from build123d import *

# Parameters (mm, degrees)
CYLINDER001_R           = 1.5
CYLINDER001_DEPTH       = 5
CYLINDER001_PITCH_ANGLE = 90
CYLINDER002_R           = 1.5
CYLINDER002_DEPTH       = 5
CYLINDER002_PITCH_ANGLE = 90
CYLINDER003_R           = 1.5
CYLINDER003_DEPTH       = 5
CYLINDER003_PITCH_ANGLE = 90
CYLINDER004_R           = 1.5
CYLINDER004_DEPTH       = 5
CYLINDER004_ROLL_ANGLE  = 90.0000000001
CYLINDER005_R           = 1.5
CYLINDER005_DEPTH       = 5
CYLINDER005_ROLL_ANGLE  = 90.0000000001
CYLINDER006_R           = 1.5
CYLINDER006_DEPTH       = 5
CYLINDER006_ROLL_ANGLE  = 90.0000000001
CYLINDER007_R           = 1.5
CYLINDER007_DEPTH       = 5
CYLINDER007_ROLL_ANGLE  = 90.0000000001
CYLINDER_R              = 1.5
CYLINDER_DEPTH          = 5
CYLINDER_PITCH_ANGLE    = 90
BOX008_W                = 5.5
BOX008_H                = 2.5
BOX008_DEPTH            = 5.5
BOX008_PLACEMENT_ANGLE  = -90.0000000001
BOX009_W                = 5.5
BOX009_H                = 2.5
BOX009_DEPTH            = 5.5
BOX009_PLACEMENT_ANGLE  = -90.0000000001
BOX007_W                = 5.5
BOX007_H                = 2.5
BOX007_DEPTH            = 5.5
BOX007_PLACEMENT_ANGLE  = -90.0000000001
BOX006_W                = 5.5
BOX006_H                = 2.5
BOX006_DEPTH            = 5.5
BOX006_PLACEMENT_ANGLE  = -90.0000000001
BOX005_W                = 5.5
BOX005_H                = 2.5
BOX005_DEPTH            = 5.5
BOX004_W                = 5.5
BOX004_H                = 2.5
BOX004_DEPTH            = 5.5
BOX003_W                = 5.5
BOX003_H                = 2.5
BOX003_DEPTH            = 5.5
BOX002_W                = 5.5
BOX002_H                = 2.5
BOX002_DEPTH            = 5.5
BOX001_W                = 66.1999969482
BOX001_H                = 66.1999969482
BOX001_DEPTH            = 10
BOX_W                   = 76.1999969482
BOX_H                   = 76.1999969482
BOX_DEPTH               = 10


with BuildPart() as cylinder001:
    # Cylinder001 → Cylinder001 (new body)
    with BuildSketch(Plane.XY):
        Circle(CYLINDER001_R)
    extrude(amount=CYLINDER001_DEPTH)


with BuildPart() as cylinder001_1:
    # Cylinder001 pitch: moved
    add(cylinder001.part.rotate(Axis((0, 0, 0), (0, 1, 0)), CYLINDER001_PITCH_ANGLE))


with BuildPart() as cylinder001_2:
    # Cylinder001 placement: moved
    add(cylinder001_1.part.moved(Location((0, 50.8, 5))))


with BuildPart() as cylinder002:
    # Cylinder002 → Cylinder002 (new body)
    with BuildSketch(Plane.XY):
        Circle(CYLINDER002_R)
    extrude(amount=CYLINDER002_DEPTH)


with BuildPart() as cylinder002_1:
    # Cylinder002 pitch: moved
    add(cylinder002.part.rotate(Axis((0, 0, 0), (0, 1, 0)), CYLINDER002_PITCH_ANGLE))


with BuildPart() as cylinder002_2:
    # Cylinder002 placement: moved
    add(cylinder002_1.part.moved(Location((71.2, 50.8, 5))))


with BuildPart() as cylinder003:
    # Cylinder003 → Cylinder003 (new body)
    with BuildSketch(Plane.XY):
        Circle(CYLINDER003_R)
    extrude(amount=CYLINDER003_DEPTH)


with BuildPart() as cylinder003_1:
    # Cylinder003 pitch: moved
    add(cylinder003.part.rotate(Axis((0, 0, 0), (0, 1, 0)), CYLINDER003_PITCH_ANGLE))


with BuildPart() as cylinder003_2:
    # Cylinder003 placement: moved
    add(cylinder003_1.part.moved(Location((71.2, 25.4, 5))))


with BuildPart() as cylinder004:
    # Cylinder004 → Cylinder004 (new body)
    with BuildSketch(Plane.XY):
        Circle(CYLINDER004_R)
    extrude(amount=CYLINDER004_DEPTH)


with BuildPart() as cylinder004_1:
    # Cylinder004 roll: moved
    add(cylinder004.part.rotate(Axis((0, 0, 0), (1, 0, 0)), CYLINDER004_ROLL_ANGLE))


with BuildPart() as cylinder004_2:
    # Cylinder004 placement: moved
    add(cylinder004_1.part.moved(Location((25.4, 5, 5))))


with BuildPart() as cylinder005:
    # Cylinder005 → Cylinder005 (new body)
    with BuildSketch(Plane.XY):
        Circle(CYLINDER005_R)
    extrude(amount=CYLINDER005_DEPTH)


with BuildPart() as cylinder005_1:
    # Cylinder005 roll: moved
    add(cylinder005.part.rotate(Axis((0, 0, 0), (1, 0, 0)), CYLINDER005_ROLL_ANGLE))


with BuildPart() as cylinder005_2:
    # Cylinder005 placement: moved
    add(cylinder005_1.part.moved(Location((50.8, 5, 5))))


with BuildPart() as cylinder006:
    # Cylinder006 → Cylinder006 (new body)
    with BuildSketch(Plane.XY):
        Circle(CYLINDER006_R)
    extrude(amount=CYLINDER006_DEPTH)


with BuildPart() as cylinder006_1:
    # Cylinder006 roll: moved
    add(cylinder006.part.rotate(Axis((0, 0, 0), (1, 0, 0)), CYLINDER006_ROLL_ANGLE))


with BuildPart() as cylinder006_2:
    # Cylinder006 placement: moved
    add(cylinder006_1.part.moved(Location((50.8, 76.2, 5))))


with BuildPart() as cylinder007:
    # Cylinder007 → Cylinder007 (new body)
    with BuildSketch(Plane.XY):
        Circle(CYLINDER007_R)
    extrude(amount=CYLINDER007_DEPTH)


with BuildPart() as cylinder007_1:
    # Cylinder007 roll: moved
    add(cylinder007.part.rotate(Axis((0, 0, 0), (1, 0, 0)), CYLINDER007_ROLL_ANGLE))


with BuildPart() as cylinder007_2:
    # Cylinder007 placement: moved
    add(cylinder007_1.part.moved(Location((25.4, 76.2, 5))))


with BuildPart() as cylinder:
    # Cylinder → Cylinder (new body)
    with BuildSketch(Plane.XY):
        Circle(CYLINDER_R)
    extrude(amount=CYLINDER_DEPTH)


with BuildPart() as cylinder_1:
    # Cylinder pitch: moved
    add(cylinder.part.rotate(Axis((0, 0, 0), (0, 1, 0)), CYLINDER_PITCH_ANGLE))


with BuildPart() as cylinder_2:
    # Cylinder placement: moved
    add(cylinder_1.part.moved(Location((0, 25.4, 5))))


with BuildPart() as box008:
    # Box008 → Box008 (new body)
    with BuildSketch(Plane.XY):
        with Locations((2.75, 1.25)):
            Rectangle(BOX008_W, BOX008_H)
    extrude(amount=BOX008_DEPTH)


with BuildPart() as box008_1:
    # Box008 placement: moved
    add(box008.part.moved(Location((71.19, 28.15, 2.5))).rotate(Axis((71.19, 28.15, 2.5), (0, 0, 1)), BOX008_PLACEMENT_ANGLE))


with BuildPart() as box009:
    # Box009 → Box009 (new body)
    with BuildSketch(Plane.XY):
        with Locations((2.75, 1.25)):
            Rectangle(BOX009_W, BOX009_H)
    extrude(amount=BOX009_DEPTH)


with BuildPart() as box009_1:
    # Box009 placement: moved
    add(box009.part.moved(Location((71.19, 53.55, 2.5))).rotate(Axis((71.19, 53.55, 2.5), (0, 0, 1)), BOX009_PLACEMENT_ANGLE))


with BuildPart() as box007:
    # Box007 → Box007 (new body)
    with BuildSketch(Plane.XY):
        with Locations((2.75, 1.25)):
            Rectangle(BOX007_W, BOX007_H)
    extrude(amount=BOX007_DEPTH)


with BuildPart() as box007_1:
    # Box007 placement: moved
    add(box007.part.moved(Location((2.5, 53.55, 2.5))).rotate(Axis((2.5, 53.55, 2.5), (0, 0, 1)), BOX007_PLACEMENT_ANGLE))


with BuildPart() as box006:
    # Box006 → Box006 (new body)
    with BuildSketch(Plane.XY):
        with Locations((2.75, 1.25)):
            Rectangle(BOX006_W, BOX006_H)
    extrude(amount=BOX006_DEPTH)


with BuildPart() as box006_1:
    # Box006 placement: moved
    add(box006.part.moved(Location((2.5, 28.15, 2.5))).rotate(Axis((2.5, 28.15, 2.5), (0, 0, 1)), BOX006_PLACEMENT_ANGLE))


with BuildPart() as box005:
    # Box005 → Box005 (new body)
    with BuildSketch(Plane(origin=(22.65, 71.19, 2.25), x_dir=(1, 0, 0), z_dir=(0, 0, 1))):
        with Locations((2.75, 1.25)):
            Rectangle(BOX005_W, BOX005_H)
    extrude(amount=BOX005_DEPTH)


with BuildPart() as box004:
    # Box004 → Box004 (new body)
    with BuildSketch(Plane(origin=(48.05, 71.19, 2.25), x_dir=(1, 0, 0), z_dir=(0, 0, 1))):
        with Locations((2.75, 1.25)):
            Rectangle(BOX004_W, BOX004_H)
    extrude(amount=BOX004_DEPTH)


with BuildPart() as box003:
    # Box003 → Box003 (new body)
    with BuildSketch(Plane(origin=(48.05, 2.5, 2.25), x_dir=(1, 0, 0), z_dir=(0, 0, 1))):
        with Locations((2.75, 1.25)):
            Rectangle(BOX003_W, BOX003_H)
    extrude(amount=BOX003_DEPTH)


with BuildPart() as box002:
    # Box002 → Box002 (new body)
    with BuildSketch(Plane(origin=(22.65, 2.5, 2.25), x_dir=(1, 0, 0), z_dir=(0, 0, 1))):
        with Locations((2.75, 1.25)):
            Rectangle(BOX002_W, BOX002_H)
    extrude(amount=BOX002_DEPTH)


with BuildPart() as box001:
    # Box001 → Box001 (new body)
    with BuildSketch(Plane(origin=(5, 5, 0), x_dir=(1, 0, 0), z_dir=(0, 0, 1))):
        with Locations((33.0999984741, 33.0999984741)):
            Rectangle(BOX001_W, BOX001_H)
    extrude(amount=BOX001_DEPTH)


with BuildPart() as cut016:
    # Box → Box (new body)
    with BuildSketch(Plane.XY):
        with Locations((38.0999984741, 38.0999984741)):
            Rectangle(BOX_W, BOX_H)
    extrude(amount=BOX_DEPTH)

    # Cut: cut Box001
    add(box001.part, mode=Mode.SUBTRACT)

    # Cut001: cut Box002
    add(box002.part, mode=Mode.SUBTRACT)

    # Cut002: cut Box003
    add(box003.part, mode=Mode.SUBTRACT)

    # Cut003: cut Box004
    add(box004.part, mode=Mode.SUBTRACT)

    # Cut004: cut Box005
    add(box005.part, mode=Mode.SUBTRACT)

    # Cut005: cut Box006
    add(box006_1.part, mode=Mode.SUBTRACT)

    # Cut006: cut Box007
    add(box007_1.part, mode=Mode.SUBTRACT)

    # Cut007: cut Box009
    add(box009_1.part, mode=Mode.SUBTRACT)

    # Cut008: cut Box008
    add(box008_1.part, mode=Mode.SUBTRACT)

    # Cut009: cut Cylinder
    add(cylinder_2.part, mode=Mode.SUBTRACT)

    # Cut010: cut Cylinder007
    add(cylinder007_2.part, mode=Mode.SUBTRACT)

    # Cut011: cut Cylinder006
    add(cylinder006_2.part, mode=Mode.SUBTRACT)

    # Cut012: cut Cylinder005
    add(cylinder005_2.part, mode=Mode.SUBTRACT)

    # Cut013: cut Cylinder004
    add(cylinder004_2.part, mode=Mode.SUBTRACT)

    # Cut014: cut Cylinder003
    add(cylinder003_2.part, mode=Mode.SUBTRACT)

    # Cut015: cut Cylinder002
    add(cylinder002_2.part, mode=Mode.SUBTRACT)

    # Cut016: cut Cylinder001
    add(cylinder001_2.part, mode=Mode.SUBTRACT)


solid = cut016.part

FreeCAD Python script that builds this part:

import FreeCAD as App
import Part
import Sketcher
Q = App.Units.Quantity

doc = App.newDocument("Part")
body = doc.addObject("PartDesign::Body", "Body")

# Sketch on XY plane
sketch1 = body.newObject("Sketcher::SketchObject", "Sketch")
sketch1.AttachmentSupport = (doc.getObject("XY_Plane"), [""])
sketch1.MapMode = "FlatFace"
sketch1.addGeometry(Part.Circle(App.Vector(0, 0, 0), App.Vector(0, 0, 1), 1.5), False)
sketch1.addConstraint([
    Sketcher.Constraint("Coincident", 0, 3, -1, 1),
    Sketcher.Constraint("Diameter", 0, Q("3 mm")),
])
pad1 = body.newObject("PartDesign::Pad", "Pad")
pad1.Profile = sketch1
pad1.Length = 5
body2 = doc.addObject("PartDesign::Body", "Body001")
doc.recompute()

body.Placement = App.Placement(App.Vector(0, 0, 0), App.Rotation(App.Vector(0, 1, 0), 90))
boolean = body2.newObject("PartDesign::Boolean", "Boolean")
boolean.Type = "Fuse"
boolean.addObjects([body])
body3 = doc.addObject("PartDesign::Body", "Body002")
doc.recompute()

body2.Placement = App.Placement(App.Vector(0, 50.8, 5), App.Rotation(App.Vector(0, 0, 1), 0))
boolean2 = body3.newObject("PartDesign::Boolean", "Boolean001")
boolean2.Type = "Fuse"
boolean2.addObjects([body2])
body4 = doc.addObject("PartDesign::Body", "Body003")

# Sketch on XY plane
sketch2 = body4.newObject("Sketcher::SketchObject", "Sketch001")
sketch2.AttachmentSupport = (doc.getObject("XY_Plane003"), [""])
sketch2.MapMode = "FlatFace"
sketch2.addGeometry(Part.Circle(App.Vector(0, 0, 0), App.Vector(0, 0, 1), 1.5), False)
sketch2.addConstraint([
    Sketcher.Constraint("Coincident", 0, 3, -1, 1),
    Sketcher.Constraint("Diameter", 0, Q("3 mm")),
])
pad2 = body4.newObject("PartDesign::Pad", "Pad001")
pad2.Profile = sketch2
pad2.Length = 5
body5 = doc.addObject("PartDesign::Body", "Body004")
doc.recompute()

body4.Placement = App.Placement(App.Vector(0, 0, 0), App.Rotation(App.Vector(0, 1, 0), 90))
boolean3 = body5.newObject("PartDesign::Boolean", "Boolean002")
boolean3.Type = "Fuse"
boolean3.addObjects([body4])
body6 = doc.addObject("PartDesign::Body", "Body005")
doc.recompute()

body5.Placement = App.Placement(App.Vector(71.2, 50.8, 5), App.Rotation(App.Vector(0, 0, 1), 0))
boolean4 = body6.newObject("PartDesign::Boolean", "Boolean003")
boolean4.Type = "Fuse"
boolean4.addObjects([body5])
body7 = doc.addObject("PartDesign::Body", "Body006")

# Sketch on XY plane
sketch3 = body7.newObject("Sketcher::SketchObject", "Sketch002")
sketch3.AttachmentSupport = (doc.getObject("XY_Plane006"), [""])
sketch3.MapMode = "FlatFace"
sketch3.addGeometry(Part.Circle(App.Vector(0, 0, 0), App.Vector(0, 0, 1), 1.5), False)
sketch3.addConstraint([
    Sketcher.Constraint("Coincident", 0, 3, -1, 1),
    Sketcher.Constraint("Diameter", 0, Q("3 mm")),
])
pad3 = body7.newObject("PartDesign::Pad", "Pad002")
pad3.Profile = sketch3
pad3.Length = 5
body8 = doc.addObject("PartDesign::Body", "Body007")
doc.recompute()

body7.Placement = App.Placement(App.Vector(0, 0, 0), App.Rotation(App.Vector(0, 1, 0), 90))
boolean5 = body8.newObject("PartDesign::Boolean", "Boolean004")
boolean5.Type = "Fuse"
boolean5.addObjects([body7])
body9 = doc.addObject("PartDesign::Body", "Body008")
doc.recompute()

body8.Placement = App.Placement(App.Vector(71.2, 25.4, 5), App.Rotation(App.Vector(0, 0, 1), 0))
boolean6 = body9.newObject("PartDesign::Boolean", "Boolean005")
boolean6.Type = "Fuse"
boolean6.addObjects([body8])
body10 = doc.addObject("PartDesign::Body", "Body009")

# Sketch on XY plane
sketch4 = body10.newObject("Sketcher::SketchObject", "Sketch003")
sketch4.AttachmentSupport = (doc.getObject("XY_Plane009"), [""])
sketch4.MapMode = "FlatFace"
sketch4.addGeometry(Part.Circle(App.Vector(0, 0, 0), App.Vector(0, 0, 1), 1.5), False)
sketch4.addConstraint([
    Sketcher.Constraint("Coincident", 0, 3, -1, 1),
    Sketcher.Constraint("Diameter", 0, Q("3 mm")),
])
pad4 = body10.newObject("PartDesign::Pad", "Pad003")
pad4.Profile = sketch4
pad4.Length = 5
body11 = doc.addObject("PartDesign::Body", "Body010")
doc.recompute()

body10.Placement = App.Placement(App.Vector(0, 0, 0), App.Rotation(App.Vector(1, 0, 0), 90))
boolean7 = body11.newObject("PartDesign::Boolean", "Boolean006")
boolean7.Type = "Fuse"
boolean7.addObjects([body10])
body12 = doc.addObject("PartDesign::Body", "Body011")
doc.recompute()

body11.Placement = App.Placement(App.Vector(25.4, 5, 5), App.Rotation(App.Vector(0, 0, 1), 0))
boolean8 = body12.newObject("PartDesign::Boolean", "Boolean007")
boolean8.Type = "Fuse"
boolean8.addObjects([body11])
body13 = doc.addObject("PartDesign::Body", "Body012")

# Sketch on XY plane
sketch5 = body13.newObject("Sketcher::SketchObject", "Sketch004")
sketch5.AttachmentSupport = (doc.getObject("XY_Plane012"), [""])
sketch5.MapMode = "FlatFace"
sketch5.addGeometry(Part.Circle(App.Vector(0, 0, 0), App.Vector(0, 0, 1), 1.5), False)
sketch5.addConstraint([
    Sketcher.Constraint("Coincident", 0, 3, -1, 1),
    Sketcher.Constraint("Diameter", 0, Q("3 mm")),
])
pad5 = body13.newObject("PartDesign::Pad", "Pad004")
pad5.Profile = sketch5
pad5.Length = 5
body14 = doc.addObject("PartDesign::Body", "Body013")
doc.recompute()

body13.Placement = App.Placement(App.Vector(0, 0, 0), App.Rotation(App.Vector(1, 0, 0), 90))
boolean9 = body14.newObject("PartDesign::Boolean", "Boolean008")
boolean9.Type = "Fuse"
boolean9.addObjects([body13])
body15 = doc.addObject("PartDesign::Body", "Body014")
doc.recompute()

body14.Placement = App.Placement(App.Vector(50.8, 5, 5), App.Rotation(App.Vector(0, 0, 1), 0))
boolean10 = body15.newObject("PartDesign::Boolean", "Boolean009")
boolean10.Type = "Fuse"
boolean10.addObjects([body14])
body16 = doc.addObject("PartDesign::Body", "Body015")

# Sketch on XY plane
sketch6 = body16.newObject("Sketcher::SketchObject", "Sketch005")
sketch6.AttachmentSupport = (doc.getObject("XY_Plane015"), [""])
sketch6.MapMode = "FlatFace"
sketch6.addGeometry(Part.Circle(App.Vector(0, 0, 0), App.Vector(0, 0, 1), 1.5), False)
sketch6.addConstraint([
    Sketcher.Constraint("Coincident", 0, 3, -1, 1),
    Sketcher.Constraint("Diameter", 0, Q("3 mm")),
])
pad6 = body16.newObject("PartDesign::Pad", "Pad005")
pad6.Profile = sketch6
pad6.Length = 5
body17 = doc.addObject("PartDesign::Body", "Body016")
doc.recompute()

body16.Placement = App.Placement(App.Vector(0, 0, 0), App.Rotation(App.Vector(1, 0, 0), 90))
boolean11 = body17.newObject("PartDesign::Boolean", "Boolean010")
boolean11.Type = "Fuse"
boolean11.addObjects([body16])
body18 = doc.addObject("PartDesign::Body", "Body017")
doc.recompute()

body17.Placement = App.Placement(App.Vector(50.8, 76.2, 5), App.Rotation(App.Vector(0, 0, 1), 0))
boolean12 = body18.newObject("PartDesign::Boolean", "Boolean011")
boolean12.Type = "Fuse"
boolean12.addObjects([body17])
body19 = doc.addObject("PartDesign::Body", "Body018")

# Sketch on XY plane
sketch7 = body19.newObject("Sketcher::SketchObject", "Sketch006")
sketch7.AttachmentSupport = (doc.getObject("XY_Plane018"), [""])
sketch7.MapMode = "FlatFace"
sketch7.addGeometry(Part.Circle(App.Vector(0, 0, 0), App.Vector(0, 0, 1), 1.5), False)
sketch7.addConstraint([
    Sketcher.Constraint("Coincident", 0, 3, -1, 1),
    Sketcher.Constraint("Diameter", 0, Q("3 mm")),
])
pad7 = body19.newObject("PartDesign::Pad", "Pad006")
pad7.Profile = sketch7
pad7.Length = 5
body20 = doc.addObject("PartDesign::Body", "Body019")
doc.recompute()

body19.Placement = App.Placement(App.Vector(0, 0, 0), App.Rotation(App.Vector(1, 0, 0), 90))
boolean13 = body20.newObject("PartDesign::Boolean", "Boolean012")
boolean13.Type = "Fuse"
boolean13.addObjects([body19])
body21 = doc.addObject("PartDesign::Body", "Body020")
doc.recompute()

body20.Placement = App.Placement(App.Vector(25.4, 76.2, 5), App.Rotation(App.Vector(0, 0, 1), 0))
boolean14 = body21.newObject("PartDesign::Boolean", "Boolean013")
boolean14.Type = "Fuse"
boolean14.addObjects([body20])
body22 = doc.addObject("PartDesign::Body", "Body021")

# Sketch on XY plane
sketch8 = body22.newObject("Sketcher::SketchObject", "Sketch007")
sketch8.AttachmentSupport = (doc.getObject("XY_Plane021"), [""])
sketch8.MapMode = "FlatFace"
sketch8.addGeometry(Part.Circle(App.Vector(0, 0, 0), App.Vector(0, 0, 1), 1.5), False)
sketch8.addConstraint([
    Sketcher.Constraint("Coincident", 0, 3, -1, 1),
    Sketcher.Constraint("Diameter", 0, Q("3 mm")),
])
pad8 = body22.newObject("PartDesign::Pad", "Pad007")
pad8.Profile = sketch8
pad8.Length = 5
body23 = doc.addObject("PartDesign::Body", "Body022")
doc.recompute()

body22.Placement = App.Placement(App.Vector(0, 0, 0), App.Rotation(App.Vector(0, 1, 0), 90))
boolean15 = body23.newObject("PartDesign::Boolean", "Boolean014")
boolean15.Type = "Fuse"
boolean15.addObjects([body22])
body24 = doc.addObject("PartDesign::Body", "Body023")
doc.recompute()

body23.Placement = App.Placement(App.Vector(0, 25.4, 5), App.Rotation(App.Vector(0, 0, 1), 0))
boolean16 = body24.newObject("PartDesign::Boolean", "Boolean015")
boolean16.Type = "Fuse"
boolean16.addObjects([body23])
body25 = doc.addObject("PartDesign::Body", "Body024")

# Sketch on XY plane
sketch9 = body25.newObject("Sketcher::SketchObject", "Sketch008")
sketch9.AttachmentSupport = (doc.getObject("XY_Plane024"), [""])
sketch9.MapMode = "FlatFace"
sketch9.addGeometry([
    Part.LineSegment(App.Vector(0, 2.5, 0), App.Vector(0, 0, 0)),
    Part.LineSegment(App.Vector(0, 0, 0), App.Vector(5.5, 0, 0)),
    Part.LineSegment(App.Vector(5.5, 0, 0), App.Vector(5.5, 2.5, 0)),
    Part.LineSegment(App.Vector(5.5, 2.5, 0), App.Vector(0, 2.5, 0)),
], False)
sketch9.addConstraint([
    Sketcher.Constraint("Coincident", 0, 2, 1, 1),
    Sketcher.Constraint("Coincident", 1, 2, 2, 1),
    Sketcher.Constraint("Coincident", 2, 2, 3, 1),
    Sketcher.Constraint("Coincident", 3, 2, 0, 1),
    Sketcher.Constraint("Vertical", 0),
    Sketcher.Constraint("Horizontal", 1),
    Sketcher.Constraint("Vertical", 2),
    Sketcher.Constraint("Horizontal", 3),
    Sketcher.Constraint("Coincident", 0, 2, -1, 1),
    Sketcher.Constraint("DistanceX", 1, 1, 1, 2, Q("5.5 mm")),
    Sketcher.Constraint("DistanceY", 0, 2, 0, 1, Q("2.5 mm")),
])
pad9 = body25.newObject("PartDesign::Pad", "Pad008")
pad9.Profile = sketch9
pad9.Length = 5.5
body26 = doc.addObject("PartDesign::Body", "Body025")
doc.recompute()

body25.Placement = App.Placement(App.Vector(71.19, 28.15, 2.5), App.Rotation(App.Vector(0, 0, 1), 270))
boolean17 = body26.newObject("PartDesign::Boolean", "Boolean016")
boolean17.Type = "Fuse"
boolean17.addObjects([body25])
body27 = doc.addObject("PartDesign::Body", "Body026")

# Sketch on XY plane
sketch10 = body27.newObject("Sketcher::SketchObject", "Sketch009")
sketch10.AttachmentSupport = (doc.getObject("XY_Plane026"), [""])
sketch10.MapMode = "FlatFace"
sketch10.addGeometry([
    Part.LineSegment(App.Vector(0, 2.5, 0), App.Vector(0, 0, 0)),
    Part.LineSegment(App.Vector(0, 0, 0), App.Vector(5.5, 0, 0)),
    Part.LineSegment(App.Vector(5.5, 0, 0), App.Vector(5.5, 2.5, 0)),
    Part.LineSegment(App.Vector(5.5, 2.5, 0), App.Vector(0, 2.5, 0)),
], False)
sketch10.addConstraint([
    Sketcher.Constraint("Coincident", 0, 2, 1, 1),
    Sketcher.Constraint("Coincident", 1, 2, 2, 1),
    Sketcher.Constraint("Coincident", 2, 2, 3, 1),
    Sketcher.Constraint("Coincident", 3, 2, 0, 1),
    Sketcher.Constraint("Vertical", 0),
    Sketcher.Constraint("Horizontal", 1),
    Sketcher.Constraint("Vertical", 2),
    Sketcher.Constraint("Horizontal", 3),
    Sketcher.Constraint("Coincident", 0, 2, -1, 1),
    Sketcher.Constraint("DistanceX", 1, 1, 1, 2, Q("5.5 mm")),
    Sketcher.Constraint("DistanceY", 0, 2, 0, 1, Q("2.5 mm")),
])
pad10 = body27.newObject("PartDesign::Pad", "Pad009")
pad10.Profile = sketch10
pad10.Length = 5.5
body28 = doc.addObject("PartDesign::Body", "Body027")
doc.recompute()

body27.Placement = App.Placement(App.Vector(71.19, 53.55, 2.5), App.Rotation(App.Vector(0, 0, 1), 270))
boolean18 = body28.newObject("PartDesign::Boolean", "Boolean017")
boolean18.Type = "Fuse"
boolean18.addObjects([body27])
body29 = doc.addObject("PartDesign::Body", "Body028")

# Sketch on XY plane
sketch11 = body29.newObject("Sketcher::SketchObject", "Sketch010")
sketch11.AttachmentSupport = (doc.getObject("XY_Plane028"), [""])
sketch11.MapMode = "FlatFace"
sketch11.addGeometry([
    Part.LineSegment(App.Vector(0, 2.5, 0), App.Vector(0, 0, 0)),
    Part.LineSegment(App.Vector(0, 0, 0), App.Vector(5.5, 0, 0)),
    Part.LineSegment(App.Vector(5.5, 0, 0), App.Vector(5.5, 2.5, 0)),
    Part.LineSegment(App.Vector(5.5, 2.5, 0), App.Vector(0, 2.5, 0)),
], False)
sketch11.addConstraint([
    Sketcher.Constraint("Coincident", 0, 2, 1, 1),
    Sketcher.Constraint("Coincident", 1, 2, 2, 1),
    Sketcher.Constraint("Coincident", 2, 2, 3, 1),
    Sketcher.Constraint("Coincident", 3, 2, 0, 1),
    Sketcher.Constraint("Vertical", 0),
    Sketcher.Constraint("Horizontal", 1),
    Sketcher.Constraint("Vertical", 2),
    Sketcher.Constraint("Horizontal", 3),
    Sketcher.Constraint("Coincident", 0, 2, -1, 1),
    Sketcher.Constraint("DistanceX", 1, 1, 1, 2, Q("5.5 mm")),
    Sketcher.Constraint("DistanceY", 0, 2, 0, 1, Q("2.5 mm")),
])
pad11 = body29.newObject("PartDesign::Pad", "Pad010")
pad11.Profile = sketch11
pad11.Length = 5.5
body30 = doc.addObject("PartDesign::Body", "Body029")
doc.recompute()

body29.Placement = App.Placement(App.Vector(2.5, 53.55, 2.5), App.Rotation(App.Vector(0, 0, 1), 270))
boolean19 = body30.newObject("PartDesign::Boolean", "Boolean018")
boolean19.Type = "Fuse"
boolean19.addObjects([body29])
body31 = doc.addObject("PartDesign::Body", "Body030")

# Sketch on XY plane
sketch12 = body31.newObject("Sketcher::SketchObject", "Sketch011")
sketch12.AttachmentSupport = (doc.getObject("XY_Plane030"), [""])
sketch12.MapMode = "FlatFace"
sketch12.addGeometry([
    Part.LineSegment(App.Vector(0, 2.5, 0), App.Vector(0, 0, 0)),
    Part.LineSegment(App.Vector(0, 0, 0), App.Vector(5.5, 0, 0)),
    Part.LineSegment(App.Vector(5.5, 0, 0), App.Vector(5.5, 2.5, 0)),
    Part.LineSegment(App.Vector(5.5, 2.5, 0), App.Vector(0, 2.5, 0)),
], False)
sketch12.addConstraint([
    Sketcher.Constraint("Coincident", 0, 2, 1, 1),
    Sketcher.Constraint("Coincident", 1, 2, 2, 1),
    Sketcher.Constraint("Coincident", 2, 2, 3, 1),
    Sketcher.Constraint("Coincident", 3, 2, 0, 1),
    Sketcher.Constraint("Vertical", 0),
    Sketcher.Constraint("Horizontal", 1),
    Sketcher.Constraint("Vertical", 2),
    Sketcher.Constraint("Horizontal", 3),
    Sketcher.Constraint("Coincident", 0, 2, -1, 1),
    Sketcher.Constraint("DistanceX", 1, 1, 1, 2, Q("5.5 mm")),
    Sketcher.Constraint("DistanceY", 0, 2, 0, 1, Q("2.5 mm")),
])
pad12 = body31.newObject("PartDesign::Pad", "Pad011")
pad12.Profile = sketch12
pad12.Length = 5.5
body32 = doc.addObject("PartDesign::Body", "Body031")
doc.recompute()

body31.Placement = App.Placement(App.Vector(2.5, 28.15, 2.5), App.Rotation(App.Vector(0, 0, 1), 270))
boolean20 = body32.newObject("PartDesign::Boolean", "Boolean019")
boolean20.Type = "Fuse"
boolean20.addObjects([body31])
body33 = doc.addObject("PartDesign::Body", "Body032")

# Sketch on XY plane
sketch13 = body33.newObject("Sketcher::SketchObject", "Sketch012")
sketch13.AttachmentSupport = (doc.getObject("XY_Plane032"), [""])
sketch13.MapMode = "FlatFace"
sketch13.AttachmentOffset = App.Placement(App.Vector(0, 0, 2.25), App.Rotation())
sketch13.addGeometry([
    Part.LineSegment(App.Vector(22.6, 73.7, 0), App.Vector(22.6, 71.2, 0)),
    Part.LineSegment(App.Vector(22.6, 71.2, 0), App.Vector(28.1, 71.2, 0)),
    Part.LineSegment(App.Vector(28.1, 71.2, 0), App.Vector(28.1, 73.7, 0)),
    Part.LineSegment(App.Vector(28.1, 73.7, 0), App.Vector(22.6, 73.7, 0)),
], False)
sketch13.addConstraint([
    Sketcher.Constraint("Coincident", 0, 2, 1, 1),
    Sketcher.Constraint("Coincident", 1, 2, 2, 1),
    Sketcher.Constraint("Coincident", 2, 2, 3, 1),
    Sketcher.Constraint("Coincident", 3, 2, 0, 1),
    Sketcher.Constraint("Vertical", 0),
    Sketcher.Constraint("Horizontal", 1),
    Sketcher.Constraint("Vertical", 2),
    Sketcher.Constraint("Horizontal", 3),
    Sketcher.Constraint("DistanceX", 1, 1, 1, 2, Q("5.5 mm")),
    Sketcher.Constraint("DistanceY", 0, 2, 0, 1, Q("2.5 mm")),
    Sketcher.Constraint("DistanceX", -1, 1, 0, 2, Q("22.65 mm")),
    Sketcher.Constraint("DistanceY", -1, 1, 0, 2, Q("71.19 mm")),
])
pad13 = body33.newObject("PartDesign::Pad", "Pad012")
pad13.Profile = sketch13
pad13.Length = 5.5
body34 = doc.addObject("PartDesign::Body", "Body033")

# Sketch on XY plane
sketch14 = body34.newObject("Sketcher::SketchObject", "Sketch013")
sketch14.AttachmentSupport = (doc.getObject("XY_Plane033"), [""])
sketch14.MapMode = "FlatFace"
sketch14.AttachmentOffset = App.Placement(App.Vector(0, 0, 2.25), App.Rotation())
sketch14.addGeometry([
    Part.LineSegment(App.Vector(48, 73.7, 0), App.Vector(48, 71.2, 0)),
    Part.LineSegment(App.Vector(48, 71.2, 0), App.Vector(53.5, 71.2, 0)),
    Part.LineSegment(App.Vector(53.5, 71.2, 0), App.Vector(53.5, 73.7, 0)),
    Part.LineSegment(App.Vector(53.5, 73.7, 0), App.Vector(48, 73.7, 0)),
], False)
sketch14.addConstraint([
    Sketcher.Constraint("Coincident", 0, 2, 1, 1),
    Sketcher.Constraint("Coincident", 1, 2, 2, 1),
    Sketcher.Constraint("Coincident", 2, 2, 3, 1),
    Sketcher.Constraint("Coincident", 3, 2, 0, 1),
    Sketcher.Constraint("Vertical", 0),
    Sketcher.Constraint("Horizontal", 1),
    Sketcher.Constraint("Vertical", 2),
    Sketcher.Constraint("Horizontal", 3),
    Sketcher.Constraint("DistanceX", 1, 1, 1, 2, Q("5.5 mm")),
    Sketcher.Constraint("DistanceY", 0, 2, 0, 1, Q("2.5 mm")),
    Sketcher.Constraint("DistanceX", -1, 1, 0, 2, Q("48.05 mm")),
    Sketcher.Constraint("DistanceY", -1, 1, 0, 2, Q("71.19 mm")),
])
pad14 = body34.newObject("PartDesign::Pad", "Pad013")
pad14.Profile = sketch14
pad14.Length = 5.5
body35 = doc.addObject("PartDesign::Body", "Body034")

# Sketch on XY plane
sketch15 = body35.newObject("Sketcher::SketchObject", "Sketch014")
sketch15.AttachmentSupport = (doc.getObject("XY_Plane034"), [""])
sketch15.MapMode = "FlatFace"
sketch15.AttachmentOffset = App.Placement(App.Vector(0, 0, 2.25), App.Rotation())
sketch15.addGeometry([
    Part.LineSegment(App.Vector(48, 5, 0), App.Vector(48, 2.5, 0)),
    Part.LineSegment(App.Vector(48, 2.5, 0), App.Vector(53.5, 2.5, 0)),
    Part.LineSegment(App.Vector(53.5, 2.5, 0), App.Vector(53.5, 5, 0)),
    Part.LineSegment(App.Vector(53.5, 5, 0), App.Vector(48, 5, 0)),
], False)
sketch15.addConstraint([
    Sketcher.Constraint("Coincident", 0, 2, 1, 1),
    Sketcher.Constraint("Coincident", 1, 2, 2, 1),
    Sketcher.Constraint("Coincident", 2, 2, 3, 1),
    Sketcher.Constraint("Coincident", 3, 2, 0, 1),
    Sketcher.Constraint("Vertical", 0),
    Sketcher.Constraint("Horizontal", 1),
    Sketcher.Constraint("Vertical", 2),
    Sketcher.Constraint("Horizontal", 3),
    Sketcher.Constraint("DistanceX", 1, 1, 1, 2, Q("5.5 mm")),
    Sketcher.Constraint("DistanceY", 0, 2, 0, 1, Q("2.5 mm")),
    Sketcher.Constraint("DistanceY", -1, 1, 2, 2, Q("5 mm")),
    Sketcher.Constraint("DistanceX", -1, 1, 0, 2, Q("48.05 mm")),
])
pad15 = body35.newObject("PartDesign::Pad", "Pad014")
pad15.Profile = sketch15
pad15.Length = 5.5
body36 = doc.addObject("PartDesign::Body", "Body035")

# Sketch on XY plane
sketch16 = body36.newObject("Sketcher::SketchObject", "Sketch015")
sketch16.AttachmentSupport = (doc.getObject("XY_Plane035"), [""])
sketch16.MapMode = "FlatFace"
sketch16.AttachmentOffset = App.Placement(App.Vector(0, 0, 2.25), App.Rotation())
sketch16.addGeometry([
    Part.LineSegment(App.Vector(22.6, 5, 0), App.Vector(22.6, 2.5, 0)),
    Part.LineSegment(App.Vector(22.6, 2.5, 0), App.Vector(28.1, 2.5, 0)),
    Part.LineSegment(App.Vector(28.1, 2.5, 0), App.Vector(28.1, 5, 0)),
    Part.LineSegment(App.Vector(28.1, 5, 0), App.Vector(22.6, 5, 0)),
], False)
sketch16.addConstraint([
    Sketcher.Constraint("Coincident", 0, 2, 1, 1),
    Sketcher.Constraint("Coincident", 1, 2, 2, 1),
    Sketcher.Constraint("Coincident", 2, 2, 3, 1),
    Sketcher.Constraint("Coincident", 3, 2, 0, 1),
    Sketcher.Constraint("Vertical", 0),
    Sketcher.Constraint("Horizontal", 1),
    Sketcher.Constraint("Vertical", 2),
    Sketcher.Constraint("Horizontal", 3),
    Sketcher.Constraint("DistanceX", 1, 1, 1, 2, Q("5.5 mm")),
    Sketcher.Constraint("DistanceY", 0, 2, 0, 1, Q("2.5 mm")),
    Sketcher.Constraint("DistanceY", -1, 1, 2, 2, Q("5 mm")),
    Sketcher.Constraint("DistanceX", -1, 1, 0, 2, Q("22.65 mm")),
])
pad16 = body36.newObject("PartDesign::Pad", "Pad015")
pad16.Profile = sketch16
pad16.Length = 5.5
body37 = doc.addObject("PartDesign::Body", "Body036")

# Sketch on XY plane
sketch17 = body37.newObject("Sketcher::SketchObject", "Sketch016")
sketch17.AttachmentSupport = (doc.getObject("XY_Plane036"), [""])
sketch17.MapMode = "FlatFace"
sketch17.addGeometry([
    Part.LineSegment(App.Vector(5, 71, 0), App.Vector(5, 5, 0)),
    Part.LineSegment(App.Vector(5, 5, 0), App.Vector(71, 5, 0)),
    Part.LineSegment(App.Vector(71, 5, 0), App.Vector(71, 71, 0)),
    Part.LineSegment(App.Vector(71, 71, 0), App.Vector(5, 71, 0)),
], False)
sketch17.addConstraint([
    Sketcher.Constraint("Coincident", 0, 2, 1, 1),
    Sketcher.Constraint("Coincident", 1, 2, 2, 1),
    Sketcher.Constraint("Coincident", 2, 2, 3, 1),
    Sketcher.Constraint("Coincident", 3, 2, 0, 1),
    Sketcher.Constraint("Vertical", 0),
    Sketcher.Constraint("Horizontal", 1),
    Sketcher.Constraint("Vertical", 2),
    Sketcher.Constraint("Horizontal", 3),
    Sketcher.Constraint("Equal", 3, 0),
    Sketcher.Constraint("DistanceX", -1, 1, 0, 2, Q("5 mm")),
    Sketcher.Constraint("DistanceY", -1, 1, 0, 2, Q("5 mm")),
    Sketcher.Constraint("DistanceX", 1, 1, 1, 2, Q("66.199997 mm")),
])
pad17 = body37.newObject("PartDesign::Pad", "Pad016")
pad17.Profile = sketch17
pad17.Length = 10
body38 = doc.addObject("PartDesign::Body", "Body037")

# Sketch on XY plane
sketch18 = body38.newObject("Sketcher::SketchObject", "Sketch017")
sketch18.AttachmentSupport = (doc.getObject("XY_Plane037"), [""])
sketch18.MapMode = "FlatFace"
sketch18.addGeometry([
    Part.LineSegment(App.Vector(0, 76, 0), App.Vector(0, 0, 0)),
    Part.LineSegment(App.Vector(0, 0, 0), App.Vector(76, 0, 0)),
    Part.LineSegment(App.Vector(76, 0, 0), App.Vector(76, 76, 0)),
    Part.LineSegment(App.Vector(76, 76, 0), App.Vector(0, 76, 0)),
], False)
sketch18.addConstraint([
    Sketcher.Constraint("Coincident", 0, 2, 1, 1),
    Sketcher.Constraint("Coincident", 1, 2, 2, 1),
    Sketcher.Constraint("Coincident", 2, 2, 3, 1),
    Sketcher.Constraint("Coincident", 3, 2, 0, 1),
    Sketcher.Constraint("Vertical", 0),
    Sketcher.Constraint("Horizontal", 1),
    Sketcher.Constraint("Vertical", 2),
    Sketcher.Constraint("Horizontal", 3),
    Sketcher.Constraint("Coincident", 0, 2, -1, 1),
    Sketcher.Constraint("Equal", 3, 0),
    Sketcher.Constraint("DistanceX", 1, 1, 1, 2, Q("76.199997 mm")),
])
pad18 = body38.newObject("PartDesign::Pad", "Pad017")
pad18.Profile = sketch18
pad18.Length = 10
doc.recompute()

boolean21 = body38.newObject("PartDesign::Boolean", "Boolean020")
boolean21.Type = "Cut"
boolean21.addObjects([body37])
doc.recompute()

boolean22 = body38.newObject("PartDesign::Boolean", "Boolean021")
boolean22.Type = "Cut"
boolean22.addObjects([body36])
doc.recompute()

boolean23 = body38.newObject("PartDesign::Boolean", "Boolean022")
boolean23.Type = "Cut"
boolean23.addObjects([body35])
doc.recompute()

boolean24 = body38.newObject("PartDesign::Boolean", "Boolean023")
boolean24.Type = "Cut"
boolean24.addObjects([body34])
doc.recompute()

boolean25 = body38.newObject("PartDesign::Boolean", "Boolean024")
boolean25.Type = "Cut"
boolean25.addObjects([body33])
doc.recompute()

boolean26 = body38.newObject("PartDesign::Boolean", "Boolean025")
boolean26.Type = "Cut"
boolean26.addObjects([body32])
doc.recompute()

boolean27 = body38.newObject("PartDesign::Boolean", "Boolean026")
boolean27.Type = "Cut"
boolean27.addObjects([body30])
doc.recompute()

boolean28 = body38.newObject("PartDesign::Boolean", "Boolean027")
boolean28.Type = "Cut"
boolean28.addObjects([body28])
doc.recompute()

boolean29 = body38.newObject("PartDesign::Boolean", "Boolean028")
boolean29.Type = "Cut"
boolean29.addObjects([body26])
doc.recompute()

boolean30 = body38.newObject("PartDesign::Boolean", "Boolean029")
boolean30.Type = "Cut"
boolean30.addObjects([body24])
doc.recompute()

boolean31 = body38.newObject("PartDesign::Boolean", "Boolean030")
boolean31.Type = "Cut"
boolean31.addObjects([body21])
doc.recompute()

boolean32 = body38.newObject("PartDesign::Boolean", "Boolean031")
boolean32.Type = "Cut"
boolean32.addObjects([body18])
doc.recompute()

boolean33 = body38.newObject("PartDesign::Boolean", "Boolean032")
boolean33.Type = "Cut"
boolean33.addObjects([body15])
doc.recompute()

boolean34 = body38.newObject("PartDesign::Boolean", "Boolean033")
boolean34.Type = "Cut"
boolean34.addObjects([body12])
doc.recompute()

boolean35 = body38.newObject("PartDesign::Boolean", "Boolean034")
boolean35.Type = "Cut"
boolean35.addObjects([body9])
doc.recompute()

boolean36 = body38.newObject("PartDesign::Boolean", "Boolean035")
boolean36.Type = "Cut"
boolean36.addObjects([body6])
doc.recompute()

boolean37 = body38.newObject("PartDesign::Boolean", "Boolean036")
boolean37.Type = "Cut"
boolean37.addObjects([body3])

doc.recompute()
